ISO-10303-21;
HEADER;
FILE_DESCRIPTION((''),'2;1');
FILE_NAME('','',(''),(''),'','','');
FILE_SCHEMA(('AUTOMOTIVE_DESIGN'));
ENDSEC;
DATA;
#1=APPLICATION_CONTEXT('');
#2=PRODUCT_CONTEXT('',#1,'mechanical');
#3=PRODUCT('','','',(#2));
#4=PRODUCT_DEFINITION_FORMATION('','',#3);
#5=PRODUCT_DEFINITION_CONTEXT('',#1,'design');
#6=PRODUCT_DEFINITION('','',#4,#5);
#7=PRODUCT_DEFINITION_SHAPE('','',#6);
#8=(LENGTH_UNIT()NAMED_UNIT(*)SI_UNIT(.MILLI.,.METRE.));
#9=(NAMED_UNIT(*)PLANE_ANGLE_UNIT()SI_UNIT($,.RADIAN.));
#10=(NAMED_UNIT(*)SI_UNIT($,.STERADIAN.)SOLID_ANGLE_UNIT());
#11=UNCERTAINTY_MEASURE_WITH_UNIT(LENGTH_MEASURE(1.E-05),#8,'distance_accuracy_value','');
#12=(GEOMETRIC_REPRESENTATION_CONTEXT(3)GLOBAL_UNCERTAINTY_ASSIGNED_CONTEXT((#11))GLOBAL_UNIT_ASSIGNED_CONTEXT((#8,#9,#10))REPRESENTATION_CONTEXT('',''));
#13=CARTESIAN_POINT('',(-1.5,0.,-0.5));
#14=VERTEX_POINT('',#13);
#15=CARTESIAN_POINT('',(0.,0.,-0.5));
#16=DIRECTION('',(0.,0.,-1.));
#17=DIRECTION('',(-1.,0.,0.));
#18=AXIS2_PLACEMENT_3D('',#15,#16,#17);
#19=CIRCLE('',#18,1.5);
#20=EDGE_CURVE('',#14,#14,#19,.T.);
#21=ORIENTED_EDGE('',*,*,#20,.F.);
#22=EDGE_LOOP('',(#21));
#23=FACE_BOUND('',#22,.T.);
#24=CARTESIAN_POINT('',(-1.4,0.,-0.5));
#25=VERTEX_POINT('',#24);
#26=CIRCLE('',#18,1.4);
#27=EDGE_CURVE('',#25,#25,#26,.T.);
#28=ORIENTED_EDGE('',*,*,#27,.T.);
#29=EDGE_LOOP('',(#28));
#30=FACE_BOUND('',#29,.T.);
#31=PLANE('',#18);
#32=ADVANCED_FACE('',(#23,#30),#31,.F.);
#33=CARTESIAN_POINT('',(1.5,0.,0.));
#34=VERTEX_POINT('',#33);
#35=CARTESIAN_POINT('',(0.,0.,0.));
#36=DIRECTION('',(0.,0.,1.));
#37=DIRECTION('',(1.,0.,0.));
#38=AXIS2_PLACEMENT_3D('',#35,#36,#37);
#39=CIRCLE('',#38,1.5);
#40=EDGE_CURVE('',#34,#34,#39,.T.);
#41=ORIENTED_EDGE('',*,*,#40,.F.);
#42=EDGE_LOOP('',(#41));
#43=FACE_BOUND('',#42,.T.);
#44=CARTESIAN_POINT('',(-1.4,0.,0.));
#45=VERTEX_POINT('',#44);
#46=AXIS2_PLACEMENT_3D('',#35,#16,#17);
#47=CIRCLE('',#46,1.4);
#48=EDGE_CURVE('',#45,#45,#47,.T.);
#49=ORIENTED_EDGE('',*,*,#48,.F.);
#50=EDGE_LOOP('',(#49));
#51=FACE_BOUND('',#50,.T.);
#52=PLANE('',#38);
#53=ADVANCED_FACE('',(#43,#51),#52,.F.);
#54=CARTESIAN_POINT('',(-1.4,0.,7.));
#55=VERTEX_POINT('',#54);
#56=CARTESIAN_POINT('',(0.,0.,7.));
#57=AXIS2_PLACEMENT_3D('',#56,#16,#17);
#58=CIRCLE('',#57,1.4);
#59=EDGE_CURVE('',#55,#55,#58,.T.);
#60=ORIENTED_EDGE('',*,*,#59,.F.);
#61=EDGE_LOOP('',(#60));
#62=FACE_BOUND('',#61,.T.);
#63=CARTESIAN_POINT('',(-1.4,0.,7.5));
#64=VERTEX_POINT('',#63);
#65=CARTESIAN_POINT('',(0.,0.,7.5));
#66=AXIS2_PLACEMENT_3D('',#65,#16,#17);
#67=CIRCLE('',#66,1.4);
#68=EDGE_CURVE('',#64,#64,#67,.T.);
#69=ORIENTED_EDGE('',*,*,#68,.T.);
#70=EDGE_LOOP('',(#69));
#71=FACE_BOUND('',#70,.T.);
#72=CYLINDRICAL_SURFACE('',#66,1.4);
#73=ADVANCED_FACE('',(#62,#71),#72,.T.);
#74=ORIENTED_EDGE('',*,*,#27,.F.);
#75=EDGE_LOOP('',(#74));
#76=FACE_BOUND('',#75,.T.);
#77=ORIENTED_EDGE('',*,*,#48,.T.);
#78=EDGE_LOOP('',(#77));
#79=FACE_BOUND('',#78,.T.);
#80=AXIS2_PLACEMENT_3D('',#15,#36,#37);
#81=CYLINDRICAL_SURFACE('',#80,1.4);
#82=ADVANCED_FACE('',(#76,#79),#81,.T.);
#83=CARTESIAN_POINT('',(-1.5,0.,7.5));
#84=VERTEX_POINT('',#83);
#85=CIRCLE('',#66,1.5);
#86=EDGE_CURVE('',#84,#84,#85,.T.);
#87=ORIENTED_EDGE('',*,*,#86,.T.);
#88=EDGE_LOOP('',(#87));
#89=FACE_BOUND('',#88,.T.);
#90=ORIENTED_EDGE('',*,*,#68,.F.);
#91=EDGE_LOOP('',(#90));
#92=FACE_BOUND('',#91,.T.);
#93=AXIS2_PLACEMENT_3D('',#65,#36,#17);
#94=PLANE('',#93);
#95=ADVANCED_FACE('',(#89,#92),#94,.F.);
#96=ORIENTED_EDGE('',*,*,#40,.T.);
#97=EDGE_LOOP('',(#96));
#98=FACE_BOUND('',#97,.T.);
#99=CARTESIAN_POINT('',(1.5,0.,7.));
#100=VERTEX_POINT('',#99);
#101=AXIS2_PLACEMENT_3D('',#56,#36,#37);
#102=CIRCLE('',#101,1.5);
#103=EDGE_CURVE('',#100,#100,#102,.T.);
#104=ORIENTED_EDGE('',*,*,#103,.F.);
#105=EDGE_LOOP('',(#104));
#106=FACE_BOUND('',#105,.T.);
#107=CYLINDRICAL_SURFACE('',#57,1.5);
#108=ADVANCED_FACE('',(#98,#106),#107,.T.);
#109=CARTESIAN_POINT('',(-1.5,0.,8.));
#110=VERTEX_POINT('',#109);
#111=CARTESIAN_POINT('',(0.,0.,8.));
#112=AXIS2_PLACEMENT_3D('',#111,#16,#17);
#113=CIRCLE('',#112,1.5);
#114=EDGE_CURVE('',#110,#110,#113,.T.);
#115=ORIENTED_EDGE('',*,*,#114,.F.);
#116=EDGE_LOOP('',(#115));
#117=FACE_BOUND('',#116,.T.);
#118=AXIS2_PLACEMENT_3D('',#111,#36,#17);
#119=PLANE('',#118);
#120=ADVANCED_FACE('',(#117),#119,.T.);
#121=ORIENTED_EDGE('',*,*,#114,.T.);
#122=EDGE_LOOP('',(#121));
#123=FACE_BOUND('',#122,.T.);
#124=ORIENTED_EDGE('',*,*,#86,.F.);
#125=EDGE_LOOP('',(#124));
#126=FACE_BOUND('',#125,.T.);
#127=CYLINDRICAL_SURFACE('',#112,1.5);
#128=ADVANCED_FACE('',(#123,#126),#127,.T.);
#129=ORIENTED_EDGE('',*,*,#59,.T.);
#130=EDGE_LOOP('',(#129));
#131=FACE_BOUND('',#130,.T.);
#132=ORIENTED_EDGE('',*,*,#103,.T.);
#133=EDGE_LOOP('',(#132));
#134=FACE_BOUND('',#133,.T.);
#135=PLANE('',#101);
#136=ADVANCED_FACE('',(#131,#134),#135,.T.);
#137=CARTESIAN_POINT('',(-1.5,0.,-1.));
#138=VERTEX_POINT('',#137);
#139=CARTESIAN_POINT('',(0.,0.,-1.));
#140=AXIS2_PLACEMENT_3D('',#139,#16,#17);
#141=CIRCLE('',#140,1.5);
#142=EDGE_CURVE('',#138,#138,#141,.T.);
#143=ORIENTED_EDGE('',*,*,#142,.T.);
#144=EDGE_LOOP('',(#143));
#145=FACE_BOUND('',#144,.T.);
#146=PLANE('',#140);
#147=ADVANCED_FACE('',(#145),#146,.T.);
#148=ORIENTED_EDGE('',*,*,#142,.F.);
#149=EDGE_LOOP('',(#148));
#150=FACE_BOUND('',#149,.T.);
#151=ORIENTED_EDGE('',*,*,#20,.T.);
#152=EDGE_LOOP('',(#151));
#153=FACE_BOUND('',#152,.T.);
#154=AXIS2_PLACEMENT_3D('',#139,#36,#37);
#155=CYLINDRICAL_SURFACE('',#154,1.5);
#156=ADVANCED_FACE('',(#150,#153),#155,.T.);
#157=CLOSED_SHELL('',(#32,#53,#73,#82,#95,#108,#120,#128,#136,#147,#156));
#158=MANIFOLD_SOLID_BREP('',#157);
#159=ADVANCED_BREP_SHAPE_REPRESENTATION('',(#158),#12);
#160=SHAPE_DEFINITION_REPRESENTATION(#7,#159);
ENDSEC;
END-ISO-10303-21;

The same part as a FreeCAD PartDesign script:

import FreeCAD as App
import Part
import Sketcher
Q = App.Units.Quantity

doc = App.newDocument("Part")
body = doc.addObject("PartDesign::Body", "Body")

# Sketch on XY plane
sketch1 = body.newObject("Sketcher::SketchObject", "Sketch")
sketch1.AttachmentSupport = (doc.getObject("XY_Plane"), [""])
sketch1.MapMode = "FlatFace"
sketch1.addGeometry(Part.Circle(App.Vector(0, 0, 0), App.Vector(0, 0, 1), 1.5), False)
sketch1.addConstraint([
    Sketcher.Constraint("Coincident", 0, 3, -1, 1),
    Sketcher.Constraint("Diameter", 0, Q("3 mm")),
])
pad1 = body.newObject("PartDesign::Pad", "Pad")
pad1.Profile = sketch1
pad1.Length = 7

# Sketch on XY plane
sketch2 = body.newObject("Sketcher::SketchObject", "Sketch001")
sketch2.AttachmentSupport = (doc.getObject("XY_Plane"), [""])
sketch2.MapMode = "FlatFace"
sketch2.addGeometry(Part.Circle(App.Vector(0, 0, 0), App.Vector(0, 0, 1), 1.4), False)
sketch2.addConstraint([
    Sketcher.Constraint("Coincident", 0, 3, -1, 1),
    Sketcher.Constraint("Diameter", 0, Q("2.8 mm")),
])
pad2 = body.newObject("PartDesign::Pad", "Pad001")
pad2.Profile = sketch2
pad2.Length = 0.5
pad2.Reversed = True

# Sketch on XY plane
sketch3 = body.newObject("Sketcher::SketchObject", "Sketch002")
sketch3.AttachmentSupport = (doc.getObject("XY_Plane"), [""])
sketch3.MapMode = "FlatFace"
sketch3.AttachmentOffset = App.Placement(App.Vector(0, 0, -1), App.Rotation())
sketch3.addGeometry(Part.Circle(App.Vector(0, 0, 0), App.Vector(0, 0, 1), 1.5), False)
sketch3.addConstraint([
    Sketcher.Constraint("Coincident", 0, 3, -1, 1),
    Sketcher.Constraint("Diameter", 0, Q("3 mm")),
])
pad3 = body.newObject("PartDesign::Pad", "Pad002")
pad3.Profile = sketch3
pad3.Length = 0.5
doc.recompute()

datumplane = body.newObject("PartDesign::Plane", "DatumPlane")
datumplane.AttachmentSupport = (doc.getObject("XY_Plane"), [""])
datumplane.MapMode = "FlatFace"
datumplane.AttachmentOffset = App.Placement(App.Vector(0, 0, 3.5), App.Rotation())
mirrored = body.newObject("PartDesign::Mirrored", "Mirrored")
mirrored.Originals = [pad2, pad3]
mirrored.MirrorPlane = (datumplane, [""])
body.Tip = mirrored

doc.recompute()
